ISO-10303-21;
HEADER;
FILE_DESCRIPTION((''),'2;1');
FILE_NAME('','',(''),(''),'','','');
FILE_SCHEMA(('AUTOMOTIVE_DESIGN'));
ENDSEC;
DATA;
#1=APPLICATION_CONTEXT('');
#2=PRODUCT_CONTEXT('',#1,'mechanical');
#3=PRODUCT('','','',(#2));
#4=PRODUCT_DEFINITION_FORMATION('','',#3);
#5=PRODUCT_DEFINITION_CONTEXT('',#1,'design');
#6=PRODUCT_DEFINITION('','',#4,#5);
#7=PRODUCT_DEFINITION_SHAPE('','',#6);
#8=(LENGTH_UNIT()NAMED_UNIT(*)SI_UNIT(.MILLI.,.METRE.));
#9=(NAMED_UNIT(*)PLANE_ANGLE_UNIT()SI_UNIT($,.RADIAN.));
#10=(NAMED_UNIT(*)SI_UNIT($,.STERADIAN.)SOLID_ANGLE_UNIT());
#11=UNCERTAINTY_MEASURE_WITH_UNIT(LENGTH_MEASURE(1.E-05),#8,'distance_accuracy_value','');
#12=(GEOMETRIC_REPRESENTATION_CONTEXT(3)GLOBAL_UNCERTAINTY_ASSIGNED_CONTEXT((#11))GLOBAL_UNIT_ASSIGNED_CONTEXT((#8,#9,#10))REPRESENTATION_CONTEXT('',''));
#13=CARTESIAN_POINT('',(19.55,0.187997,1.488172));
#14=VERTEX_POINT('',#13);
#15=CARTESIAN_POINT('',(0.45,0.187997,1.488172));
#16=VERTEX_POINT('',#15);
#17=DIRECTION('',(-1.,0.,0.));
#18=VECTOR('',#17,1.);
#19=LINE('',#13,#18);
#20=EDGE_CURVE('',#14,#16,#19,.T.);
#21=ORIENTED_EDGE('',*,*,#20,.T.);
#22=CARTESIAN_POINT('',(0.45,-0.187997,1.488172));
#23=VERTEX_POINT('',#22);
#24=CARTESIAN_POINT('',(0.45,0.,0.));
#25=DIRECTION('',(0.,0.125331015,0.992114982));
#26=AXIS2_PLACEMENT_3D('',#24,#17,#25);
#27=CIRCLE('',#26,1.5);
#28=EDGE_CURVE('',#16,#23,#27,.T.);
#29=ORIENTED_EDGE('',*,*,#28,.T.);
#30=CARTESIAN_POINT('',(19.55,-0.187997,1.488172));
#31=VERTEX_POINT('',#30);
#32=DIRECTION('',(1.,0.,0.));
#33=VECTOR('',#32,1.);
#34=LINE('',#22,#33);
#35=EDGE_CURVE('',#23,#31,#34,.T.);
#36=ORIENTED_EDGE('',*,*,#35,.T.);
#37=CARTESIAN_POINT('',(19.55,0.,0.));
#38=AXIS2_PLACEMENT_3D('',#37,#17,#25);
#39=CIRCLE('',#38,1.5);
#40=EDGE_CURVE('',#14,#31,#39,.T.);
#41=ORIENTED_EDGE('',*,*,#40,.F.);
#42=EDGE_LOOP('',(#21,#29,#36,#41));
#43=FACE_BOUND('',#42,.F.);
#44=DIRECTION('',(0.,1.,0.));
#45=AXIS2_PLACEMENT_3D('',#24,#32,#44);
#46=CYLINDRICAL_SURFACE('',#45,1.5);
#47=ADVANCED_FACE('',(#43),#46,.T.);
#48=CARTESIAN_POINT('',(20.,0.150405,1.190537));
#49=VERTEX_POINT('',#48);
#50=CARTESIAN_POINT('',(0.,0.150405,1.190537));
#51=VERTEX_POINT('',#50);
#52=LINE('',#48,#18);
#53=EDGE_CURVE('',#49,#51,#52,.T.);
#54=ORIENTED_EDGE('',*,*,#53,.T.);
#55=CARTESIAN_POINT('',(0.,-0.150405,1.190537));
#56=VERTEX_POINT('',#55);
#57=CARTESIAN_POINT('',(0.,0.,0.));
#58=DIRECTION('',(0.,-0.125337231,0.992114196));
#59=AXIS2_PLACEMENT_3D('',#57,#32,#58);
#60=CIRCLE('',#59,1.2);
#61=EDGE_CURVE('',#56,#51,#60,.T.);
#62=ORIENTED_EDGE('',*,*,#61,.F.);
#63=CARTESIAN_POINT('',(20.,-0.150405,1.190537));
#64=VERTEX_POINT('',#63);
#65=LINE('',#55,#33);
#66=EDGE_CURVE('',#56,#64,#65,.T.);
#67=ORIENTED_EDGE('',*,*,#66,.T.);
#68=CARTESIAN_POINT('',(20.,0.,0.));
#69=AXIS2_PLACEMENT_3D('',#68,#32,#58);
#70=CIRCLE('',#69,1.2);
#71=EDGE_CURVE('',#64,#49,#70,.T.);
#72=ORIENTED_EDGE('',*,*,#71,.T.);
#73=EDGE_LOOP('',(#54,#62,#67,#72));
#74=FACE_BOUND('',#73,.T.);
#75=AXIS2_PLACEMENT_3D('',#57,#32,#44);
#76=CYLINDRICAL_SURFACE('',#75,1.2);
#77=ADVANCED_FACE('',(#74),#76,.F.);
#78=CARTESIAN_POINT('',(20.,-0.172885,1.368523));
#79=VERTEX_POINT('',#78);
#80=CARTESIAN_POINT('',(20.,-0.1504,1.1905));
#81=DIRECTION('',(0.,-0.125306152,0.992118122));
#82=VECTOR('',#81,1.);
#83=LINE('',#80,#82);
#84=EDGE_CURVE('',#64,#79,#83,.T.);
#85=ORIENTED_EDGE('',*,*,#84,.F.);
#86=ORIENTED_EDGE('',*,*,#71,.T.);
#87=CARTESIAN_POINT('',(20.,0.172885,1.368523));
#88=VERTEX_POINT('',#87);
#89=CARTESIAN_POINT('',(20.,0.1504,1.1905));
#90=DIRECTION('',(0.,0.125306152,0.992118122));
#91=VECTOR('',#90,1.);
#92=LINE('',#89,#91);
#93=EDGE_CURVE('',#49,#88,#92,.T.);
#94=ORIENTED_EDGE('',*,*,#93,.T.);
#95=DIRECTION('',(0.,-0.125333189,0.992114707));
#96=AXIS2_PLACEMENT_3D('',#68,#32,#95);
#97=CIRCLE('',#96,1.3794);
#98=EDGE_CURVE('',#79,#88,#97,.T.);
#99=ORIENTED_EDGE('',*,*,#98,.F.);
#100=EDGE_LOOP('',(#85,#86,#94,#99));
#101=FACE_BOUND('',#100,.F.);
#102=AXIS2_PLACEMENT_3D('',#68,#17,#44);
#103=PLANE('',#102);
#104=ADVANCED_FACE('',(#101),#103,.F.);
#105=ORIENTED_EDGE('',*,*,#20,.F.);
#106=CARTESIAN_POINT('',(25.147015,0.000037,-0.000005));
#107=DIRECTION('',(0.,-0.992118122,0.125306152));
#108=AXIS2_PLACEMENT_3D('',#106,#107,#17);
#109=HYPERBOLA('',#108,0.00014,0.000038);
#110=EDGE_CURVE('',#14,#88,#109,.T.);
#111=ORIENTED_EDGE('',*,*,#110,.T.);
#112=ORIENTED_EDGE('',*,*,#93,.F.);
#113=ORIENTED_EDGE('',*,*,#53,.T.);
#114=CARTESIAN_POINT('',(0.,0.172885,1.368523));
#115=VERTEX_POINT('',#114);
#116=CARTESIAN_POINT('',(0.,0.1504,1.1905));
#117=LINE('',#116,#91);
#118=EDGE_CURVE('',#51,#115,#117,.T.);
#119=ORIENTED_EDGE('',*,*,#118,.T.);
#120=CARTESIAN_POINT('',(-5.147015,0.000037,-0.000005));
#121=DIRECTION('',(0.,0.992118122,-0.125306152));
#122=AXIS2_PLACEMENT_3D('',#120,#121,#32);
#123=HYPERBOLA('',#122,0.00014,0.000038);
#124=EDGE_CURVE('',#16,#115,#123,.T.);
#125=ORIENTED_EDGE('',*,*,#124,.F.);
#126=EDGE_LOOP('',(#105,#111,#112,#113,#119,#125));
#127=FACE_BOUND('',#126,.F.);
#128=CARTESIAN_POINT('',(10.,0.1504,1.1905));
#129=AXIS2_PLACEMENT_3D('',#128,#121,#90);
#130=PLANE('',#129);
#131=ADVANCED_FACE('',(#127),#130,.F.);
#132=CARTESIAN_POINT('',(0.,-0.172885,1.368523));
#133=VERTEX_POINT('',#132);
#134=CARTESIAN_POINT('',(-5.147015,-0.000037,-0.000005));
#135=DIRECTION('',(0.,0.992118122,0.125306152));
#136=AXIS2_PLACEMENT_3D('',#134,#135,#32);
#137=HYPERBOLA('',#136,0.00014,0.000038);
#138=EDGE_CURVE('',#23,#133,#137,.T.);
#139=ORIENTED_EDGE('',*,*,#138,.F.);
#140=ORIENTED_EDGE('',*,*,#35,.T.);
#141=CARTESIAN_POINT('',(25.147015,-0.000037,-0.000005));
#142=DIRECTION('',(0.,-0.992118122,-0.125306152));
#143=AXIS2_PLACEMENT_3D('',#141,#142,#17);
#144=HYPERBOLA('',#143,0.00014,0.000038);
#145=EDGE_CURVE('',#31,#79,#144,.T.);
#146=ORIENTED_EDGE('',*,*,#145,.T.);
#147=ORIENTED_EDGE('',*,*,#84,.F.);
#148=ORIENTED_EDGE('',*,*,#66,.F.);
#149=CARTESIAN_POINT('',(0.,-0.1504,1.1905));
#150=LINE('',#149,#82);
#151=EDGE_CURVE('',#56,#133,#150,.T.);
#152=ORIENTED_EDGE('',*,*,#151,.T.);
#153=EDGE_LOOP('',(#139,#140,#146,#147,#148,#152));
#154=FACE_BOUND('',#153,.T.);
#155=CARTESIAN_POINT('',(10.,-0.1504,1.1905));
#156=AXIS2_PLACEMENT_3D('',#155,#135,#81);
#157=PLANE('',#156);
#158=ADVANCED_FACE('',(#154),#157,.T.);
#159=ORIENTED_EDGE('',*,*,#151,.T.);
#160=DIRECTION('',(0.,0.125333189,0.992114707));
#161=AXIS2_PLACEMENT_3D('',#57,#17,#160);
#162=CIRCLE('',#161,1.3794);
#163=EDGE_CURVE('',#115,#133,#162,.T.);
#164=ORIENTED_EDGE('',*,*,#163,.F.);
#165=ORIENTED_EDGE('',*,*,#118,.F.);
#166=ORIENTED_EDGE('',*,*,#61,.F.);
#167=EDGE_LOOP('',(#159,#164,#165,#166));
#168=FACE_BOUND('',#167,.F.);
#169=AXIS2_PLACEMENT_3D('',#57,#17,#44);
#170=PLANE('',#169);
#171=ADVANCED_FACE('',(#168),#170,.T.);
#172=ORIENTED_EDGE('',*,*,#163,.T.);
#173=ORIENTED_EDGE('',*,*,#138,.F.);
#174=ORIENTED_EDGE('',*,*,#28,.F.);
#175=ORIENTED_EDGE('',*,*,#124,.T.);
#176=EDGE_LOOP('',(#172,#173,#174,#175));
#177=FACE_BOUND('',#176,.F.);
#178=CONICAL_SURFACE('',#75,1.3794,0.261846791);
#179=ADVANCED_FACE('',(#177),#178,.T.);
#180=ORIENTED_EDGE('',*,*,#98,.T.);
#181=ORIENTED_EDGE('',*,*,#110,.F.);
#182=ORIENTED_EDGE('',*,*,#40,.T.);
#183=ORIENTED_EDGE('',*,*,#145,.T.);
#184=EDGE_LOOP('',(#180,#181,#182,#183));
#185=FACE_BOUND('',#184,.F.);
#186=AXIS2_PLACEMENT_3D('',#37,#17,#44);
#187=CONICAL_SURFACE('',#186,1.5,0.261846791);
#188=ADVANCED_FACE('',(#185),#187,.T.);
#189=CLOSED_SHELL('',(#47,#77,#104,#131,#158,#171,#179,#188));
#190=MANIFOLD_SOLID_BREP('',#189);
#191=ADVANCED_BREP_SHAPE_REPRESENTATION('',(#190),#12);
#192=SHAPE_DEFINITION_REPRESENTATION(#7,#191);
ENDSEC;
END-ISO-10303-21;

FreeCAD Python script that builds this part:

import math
import FreeCAD as App
import Part
import Sketcher
Q = App.Units.Quantity

doc = App.newDocument("Part")
params = doc.addObject("Spreadsheet::Sheet", "Params")
for row, (alias, value) in enumerate([
    ("sketch1_width", "20 mm"),
    ("sketch1_width2", "19.1 mm"),
    ("revolution_angle", "360 deg"),
    ("sketch2_radius", "1.5 mm"),
    ("sketch2_radius2", "1.2 mm"),
    ("pocket1_length", "20 mm"),
], start=1):
    params.set(f"A{row}", alias)
    params.set(f"B{row}", "=" + value)
    params.setAlias(f"B{row}", alias)

body = doc.addObject("PartDesign::Body", "Body")

# Sketch on XY plane
sketch1 = body.newObject("Sketcher::SketchObject", "Sketch")
sketch1.AttachmentSupport = (doc.getObject("XY_Plane"), [""])
sketch1.MapMode = "FlatFace"
sketch1.addGeometry(Part.LineSegment(App.Vector(0, 1.38, 0), App.Vector(0, 1.2, 0)), False)
sketch1.addGeometry(Part.LineSegment(App.Vector(0, 1.2, 0), App.Vector(20, 1.2, 0)), False)
sketch1.addGeometry(Part.LineSegment(App.Vector(20, 1.2, 0), App.Vector(20, 1.38, 0)), False)
sketch1.addGeometry(Part.LineSegment(App.Vector(20, 1.38, 0), App.Vector(19.55, 1.5, 0)), False)
sketch1.addGeometry(Part.LineSegment(App.Vector(19.55, 1.5, 0), App.Vector(0.45, 1.5, 0)), False)
sketch1.addGeometry(Part.LineSegment(App.Vector(0.45, 1.5, 0), App.Vector(0, 1.38, 0)), False)
sketch1.addConstraint(Sketcher.Constraint("Coincident", 0, 2, 1, 1))
sketch1.addConstraint(Sketcher.Constraint("Coincident", 1, 2, 2, 1))
sketch1.addConstraint(Sketcher.Constraint("Coincident", 2, 2, 3, 1))
sketch1.addConstraint(Sketcher.Constraint("Coincident", 3, 2, 4, 1))
sketch1.addConstraint(Sketcher.Constraint("Coincident", 4, 2, 5, 1))
sketch1.addConstraint(Sketcher.Constraint("Coincident", 5, 2, 0, 1))
sketch1.addConstraint(Sketcher.Constraint("Vertical", 0))
sketch1.addConstraint(Sketcher.Constraint("Horizontal", 1))
sketch1.addConstraint(Sketcher.Constraint("Vertical", 2))
sketch1.addConstraint(Sketcher.Constraint("Horizontal", 4))
sketch1.addConstraint(Sketcher.Constraint("PointOnObject", 0, 2, -2))
sketch1.addConstraint(Sketcher.Constraint("Horizontal", 2, 2, 5, 2))
sketch1.addConstraint(Sketcher.Constraint("Equal", 3, 5))
sketch1.addConstraint(Sketcher.Constraint("DistanceX", 1, 1, 1, 2, Q("20 mm")))
sketch1.addConstraint(Sketcher.Constraint("DistanceX", 4, 2, 4, 1, Q("19.1 mm")))
sketch1.addConstraint(Sketcher.Constraint("DistanceY", -1, 1, 0, 2, Q("1.2 mm")))
sketch1.addConstraint(Sketcher.Constraint("DistanceY", -1, 1, 3, 2, Q("1.5 mm")))
sketch1.addConstraint(Sketcher.Constraint("DistanceY", 2, 2, 3, 2, Q("0.1206 mm")))
sketch1.setExpression("Constraints[13]", "Params.sketch1_width")
sketch1.setExpression("Constraints[14]", "Params.sketch1_width2")
revolution = body.newObject("PartDesign::Revolution", "Revolution")
revolution.Profile = sketch1
revolution.ReferenceAxis = (sketch1, ["H_Axis"])
revolution.setExpression("Angle", "Params.revolution_angle")

# Sketch on YZ plane
sketch2 = body.newObject("Sketcher::SketchObject", "Sketch001")
sketch2.AttachmentSupport = (doc.getObject("YZ_Plane"), [""])
sketch2.MapMode = "FlatFace"
sketch2.AttachmentOffset = App.Placement(App.Vector(0, 0, 10), App.Rotation())
sketch2.addGeometry(Part.LineSegment(App.Vector(0.15, 1.19, 0), App.Vector(0.19, 1.49, 0)), False)
sketch2.addGeometry(Part.ArcOfCircle(Part.Circle(App.Vector(0, 0, 0), App.Vector(0, 0, 1), 1.5), math.radians(82.8), math.radians(97.2)), False)
sketch2.addGeometry(Part.LineSegment(App.Vector(-0.19, 1.49, 0), App.Vector(-0.15, 1.19, 0)), False)
sketch2.addGeometry(Part.ArcOfCircle(Part.Circle(App.Vector(0, 0, 0), App.Vector(0, 0, 1), 1.2), math.radians(82.8), math.radians(97.2)), False)
sketch2.addConstraint(Sketcher.Constraint("Coincident", 0, 2, 1, 1))
sketch2.addConstraint(Sketcher.Constraint("Coincident", 1, 2, 2, 1))
sketch2.addConstraint(Sketcher.Constraint("Coincident", 2, 2, 3, 2))
sketch2.addConstraint(Sketcher.Constraint("Coincident", 3, 1, 0, 1))
sketch2.addConstraint(Sketcher.Constraint("Coincident", 1, 3, -1, 1))
sketch2.addConstraint(Sketcher.Constraint("Coincident", 3, 3, -1, 1))
sketch2.addConstraint(Sketcher.Constraint("Horizontal", 0, 2, 1, 2))
sketch2.addConstraint(Sketcher.Constraint("Horizontal", 2, 2, 3, 1))
sketch2.addConstraint(Sketcher.Constraint("Radius", 1, Q("1.5 mm")))
sketch2.addConstraint(Sketcher.Constraint("Radius", 3, Q("1.2 mm")))
sketch2.addConstraint(Sketcher.Constraint("DistanceX", -1, 1, 0, 2, Q("0.188 mm")))
sketch2.addConstraint(Sketcher.Constraint("DistanceX", 2, 2, -1, 1, Q("0.1504 mm")))
sketch2.setExpression("Constraints[8]", "Params.sketch2_radius")
sketch2.setExpression("Constraints[9]", "Params.sketch2_radius2")
pocket1 = body.newObject("PartDesign::Pocket", "Pocket")
pocket1.Profile = sketch2
pocket1.setExpression("Length", "Params.pocket1_length")
pocket1.Midplane = True

doc.recompute()
